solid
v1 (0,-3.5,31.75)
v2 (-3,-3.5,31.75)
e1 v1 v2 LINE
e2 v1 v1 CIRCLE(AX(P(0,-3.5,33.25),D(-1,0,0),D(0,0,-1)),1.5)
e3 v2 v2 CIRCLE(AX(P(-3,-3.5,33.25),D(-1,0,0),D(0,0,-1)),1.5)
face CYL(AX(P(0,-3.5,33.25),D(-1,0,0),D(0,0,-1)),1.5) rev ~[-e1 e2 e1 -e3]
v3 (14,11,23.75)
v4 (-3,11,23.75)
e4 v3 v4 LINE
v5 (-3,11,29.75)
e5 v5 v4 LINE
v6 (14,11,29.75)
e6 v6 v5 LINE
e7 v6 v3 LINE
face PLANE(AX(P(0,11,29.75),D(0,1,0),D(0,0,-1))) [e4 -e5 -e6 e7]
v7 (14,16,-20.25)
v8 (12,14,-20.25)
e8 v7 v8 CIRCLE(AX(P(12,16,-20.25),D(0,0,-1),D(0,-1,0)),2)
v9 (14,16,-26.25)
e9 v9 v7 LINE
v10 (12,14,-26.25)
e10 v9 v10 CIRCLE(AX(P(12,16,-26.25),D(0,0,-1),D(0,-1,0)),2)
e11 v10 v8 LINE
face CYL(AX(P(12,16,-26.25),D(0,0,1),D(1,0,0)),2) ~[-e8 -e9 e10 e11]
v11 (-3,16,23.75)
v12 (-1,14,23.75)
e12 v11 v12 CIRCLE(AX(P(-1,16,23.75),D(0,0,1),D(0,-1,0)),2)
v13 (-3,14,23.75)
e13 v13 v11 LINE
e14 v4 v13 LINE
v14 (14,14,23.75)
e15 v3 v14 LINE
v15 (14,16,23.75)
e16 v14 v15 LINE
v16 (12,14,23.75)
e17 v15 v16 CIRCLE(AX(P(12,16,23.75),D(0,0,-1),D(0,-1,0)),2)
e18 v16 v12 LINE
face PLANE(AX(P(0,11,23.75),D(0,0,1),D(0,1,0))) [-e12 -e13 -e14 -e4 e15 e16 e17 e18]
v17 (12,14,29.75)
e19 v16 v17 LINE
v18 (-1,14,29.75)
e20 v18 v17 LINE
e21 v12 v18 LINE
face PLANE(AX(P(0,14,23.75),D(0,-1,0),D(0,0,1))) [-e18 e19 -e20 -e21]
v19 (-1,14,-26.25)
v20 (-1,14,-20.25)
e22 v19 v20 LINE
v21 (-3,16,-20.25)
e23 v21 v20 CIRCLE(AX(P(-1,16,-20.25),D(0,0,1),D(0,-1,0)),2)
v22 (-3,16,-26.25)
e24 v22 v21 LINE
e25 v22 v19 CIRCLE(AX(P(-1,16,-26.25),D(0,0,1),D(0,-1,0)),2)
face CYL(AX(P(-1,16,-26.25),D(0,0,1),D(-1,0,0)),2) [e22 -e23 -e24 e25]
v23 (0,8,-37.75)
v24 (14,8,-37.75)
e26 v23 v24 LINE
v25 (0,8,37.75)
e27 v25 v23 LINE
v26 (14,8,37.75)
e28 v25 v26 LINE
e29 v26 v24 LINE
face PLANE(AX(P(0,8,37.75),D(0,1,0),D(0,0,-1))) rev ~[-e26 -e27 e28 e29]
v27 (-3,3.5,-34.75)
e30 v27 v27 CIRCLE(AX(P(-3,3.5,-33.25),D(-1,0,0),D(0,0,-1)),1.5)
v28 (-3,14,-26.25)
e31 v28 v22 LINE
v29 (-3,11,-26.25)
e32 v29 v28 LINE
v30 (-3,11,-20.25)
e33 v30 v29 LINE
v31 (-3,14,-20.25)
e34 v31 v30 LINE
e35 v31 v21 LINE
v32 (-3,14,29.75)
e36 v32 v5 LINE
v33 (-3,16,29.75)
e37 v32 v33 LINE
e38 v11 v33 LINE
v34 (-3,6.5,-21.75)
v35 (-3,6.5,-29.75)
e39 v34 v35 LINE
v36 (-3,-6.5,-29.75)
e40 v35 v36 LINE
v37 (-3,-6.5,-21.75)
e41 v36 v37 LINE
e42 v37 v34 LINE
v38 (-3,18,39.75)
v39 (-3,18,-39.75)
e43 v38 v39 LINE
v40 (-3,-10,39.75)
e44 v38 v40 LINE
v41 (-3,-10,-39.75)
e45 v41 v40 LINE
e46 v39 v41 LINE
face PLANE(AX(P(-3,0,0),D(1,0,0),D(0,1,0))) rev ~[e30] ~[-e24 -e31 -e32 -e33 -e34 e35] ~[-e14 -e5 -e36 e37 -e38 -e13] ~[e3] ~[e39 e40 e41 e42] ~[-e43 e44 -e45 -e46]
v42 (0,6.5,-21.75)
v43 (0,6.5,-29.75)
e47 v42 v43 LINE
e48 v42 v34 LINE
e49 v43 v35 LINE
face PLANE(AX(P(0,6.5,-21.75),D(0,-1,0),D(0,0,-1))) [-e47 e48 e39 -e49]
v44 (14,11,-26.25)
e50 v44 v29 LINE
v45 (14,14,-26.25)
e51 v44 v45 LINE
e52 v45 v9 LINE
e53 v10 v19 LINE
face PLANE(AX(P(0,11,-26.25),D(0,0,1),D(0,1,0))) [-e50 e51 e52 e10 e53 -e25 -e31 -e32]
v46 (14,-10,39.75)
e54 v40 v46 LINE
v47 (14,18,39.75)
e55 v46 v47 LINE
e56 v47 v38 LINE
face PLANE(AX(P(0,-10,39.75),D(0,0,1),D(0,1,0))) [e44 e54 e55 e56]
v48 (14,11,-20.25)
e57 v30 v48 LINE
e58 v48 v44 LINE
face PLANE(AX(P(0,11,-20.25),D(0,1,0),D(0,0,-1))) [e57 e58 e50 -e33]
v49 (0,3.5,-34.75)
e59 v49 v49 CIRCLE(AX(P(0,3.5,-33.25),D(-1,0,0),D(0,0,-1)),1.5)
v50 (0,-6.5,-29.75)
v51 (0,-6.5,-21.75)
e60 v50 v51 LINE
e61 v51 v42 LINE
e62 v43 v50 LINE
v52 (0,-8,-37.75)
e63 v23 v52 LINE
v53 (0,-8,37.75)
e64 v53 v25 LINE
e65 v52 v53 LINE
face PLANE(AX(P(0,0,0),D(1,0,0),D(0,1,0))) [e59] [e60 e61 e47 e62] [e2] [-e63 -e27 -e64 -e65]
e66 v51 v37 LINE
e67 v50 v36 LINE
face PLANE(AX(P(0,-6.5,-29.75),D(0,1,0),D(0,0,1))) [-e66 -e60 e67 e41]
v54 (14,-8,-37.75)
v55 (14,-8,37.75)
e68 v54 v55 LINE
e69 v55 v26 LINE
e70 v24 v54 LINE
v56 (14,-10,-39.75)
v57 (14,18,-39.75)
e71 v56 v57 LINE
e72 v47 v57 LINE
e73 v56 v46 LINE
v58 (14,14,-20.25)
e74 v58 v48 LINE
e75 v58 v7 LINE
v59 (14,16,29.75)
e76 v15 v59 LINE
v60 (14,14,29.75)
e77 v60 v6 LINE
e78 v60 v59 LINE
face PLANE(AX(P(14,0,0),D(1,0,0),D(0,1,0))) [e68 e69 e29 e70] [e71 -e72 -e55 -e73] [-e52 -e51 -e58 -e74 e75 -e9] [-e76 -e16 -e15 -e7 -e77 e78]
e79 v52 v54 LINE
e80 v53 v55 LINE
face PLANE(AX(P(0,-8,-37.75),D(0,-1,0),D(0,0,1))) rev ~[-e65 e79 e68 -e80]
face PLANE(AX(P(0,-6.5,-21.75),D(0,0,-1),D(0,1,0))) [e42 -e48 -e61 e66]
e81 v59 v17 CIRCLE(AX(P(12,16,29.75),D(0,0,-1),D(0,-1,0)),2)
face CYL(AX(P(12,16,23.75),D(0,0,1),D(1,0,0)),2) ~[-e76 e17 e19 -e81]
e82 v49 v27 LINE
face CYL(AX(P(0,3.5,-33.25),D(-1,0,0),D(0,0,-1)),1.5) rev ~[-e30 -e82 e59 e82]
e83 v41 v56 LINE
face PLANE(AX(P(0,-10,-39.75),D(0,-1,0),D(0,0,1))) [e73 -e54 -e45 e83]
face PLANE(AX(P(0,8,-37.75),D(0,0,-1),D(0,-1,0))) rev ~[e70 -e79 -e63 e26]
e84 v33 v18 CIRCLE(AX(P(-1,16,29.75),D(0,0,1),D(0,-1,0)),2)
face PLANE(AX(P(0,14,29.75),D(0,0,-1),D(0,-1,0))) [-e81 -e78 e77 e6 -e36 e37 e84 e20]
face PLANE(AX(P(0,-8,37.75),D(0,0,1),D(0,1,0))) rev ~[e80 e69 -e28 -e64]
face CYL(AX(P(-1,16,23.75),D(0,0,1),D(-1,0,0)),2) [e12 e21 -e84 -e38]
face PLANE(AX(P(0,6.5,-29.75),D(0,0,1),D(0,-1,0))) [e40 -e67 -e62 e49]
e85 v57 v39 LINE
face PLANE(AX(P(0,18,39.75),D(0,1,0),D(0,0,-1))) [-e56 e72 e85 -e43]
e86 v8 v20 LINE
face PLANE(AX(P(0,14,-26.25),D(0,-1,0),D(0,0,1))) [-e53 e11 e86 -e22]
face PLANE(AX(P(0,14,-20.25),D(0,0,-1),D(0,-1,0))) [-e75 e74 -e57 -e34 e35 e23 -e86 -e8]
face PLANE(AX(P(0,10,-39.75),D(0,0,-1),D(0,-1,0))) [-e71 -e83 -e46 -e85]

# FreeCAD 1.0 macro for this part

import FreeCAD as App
import Part
import Sketcher

V = App.Vector
Q = App.Units.Quantity


def edges_at(feature, points):
    """Names of the edges that pass closest to the given points."""
    edges = feature.Shape.Edges
    near = lambda p: min(range(len(edges)), key=lambda i: edges[i].distToShape(Part.Vertex(*p))[0])
    return sorted({f"Edge{near(p) + 1}" for p in points})


def add_polygon(sketch, points):
    """Adds a closed chain of lines whose ends are joined by coincident constraints."""
    first, n = sketch.GeometryCount, len(points)
    for a, b in zip(points, points[1:] + points[:1]):
        sketch.addGeometry(Part.LineSegment(App.Vector(*a, 0), App.Vector(*b, 0)), False)
    for i in range(n):
        sketch.addConstraint(Sketcher.Constraint("Coincident", first + i, 2, first + (i + 1) % n, 1))

doc = App.newDocument("Part")
body = doc.addObject("PartDesign::Body", "Body")

sketch1 = body.newObject("Sketcher::SketchObject", "Sketch")
sketch1.AttachmentSupport = (doc.getObject("YZ_Plane"), [""])
sketch1.MapMode = "FlatFace"
add_polygon(sketch1, [(10, 39.75), (-10, 39.75), (-10, -39.75), (10, -39.75)])
add_polygon(sketch1, [(-6.5, -29.75), (-6.5, -21.75), (6.5, -21.75), (6.5, -29.75)])
sketch1.addConstraint(Sketcher.Constraint("Horizontal", 0))
sketch1.addConstraint(Sketcher.Constraint("Vertical", 1))
sketch1.addConstraint(Sketcher.Constraint("Horizontal", 2))
sketch1.addConstraint(Sketcher.Constraint("Vertical", 3))
sketch1.addConstraint(Sketcher.Constraint("Vertical", 4))
sketch1.addConstraint(Sketcher.Constraint("Horizontal", 5))
sketch1.addConstraint(Sketcher.Constraint("Vertical", 6))
sketch1.addConstraint(Sketcher.Constraint("Horizontal", 7))
sketch1.addConstraint(Sketcher.Constraint("Symmetric", 0, 2, 2, 2, -1, 1))
sketch1.addConstraint(Sketcher.Constraint("DistanceX", 5, 1, 5, 2, Q("13 mm")))
sketch1.addConstraint(Sketcher.Constraint("DistanceY", 4, 1, 4, 2, Q("8 mm")))
sketch1.addConstraint(Sketcher.Constraint("DistanceX", 0, 2, -1, 1, Q("10 mm")))
sketch1.addConstraint(Sketcher.Constraint("DistanceY", 2, 2, 6, 2, Q("10 mm")))
sketch1.addConstraint(Sketcher.Constraint("DistanceY", 1, 2, 1, 1, Q("79.5 mm")))
sketch1.addConstraint(Sketcher.Constraint("DistanceX", 4, 2, -1, 1, Q("6.5 mm")))
pad1 = body.newObject("PartDesign::Pad", "Pad")
pad1.Profile = sketch1
pad1.Length = 3
pad1.Reversed = True

sketch2 = body.newObject("Sketcher::SketchObject", "Sketch001")
sketch2.AttachmentSupport = (doc.getObject("YZ_Plane"), [""])
sketch2.MapMode = "FlatFace"
add_polygon(sketch2, [(10, 39.75), (-10, 39.75), (-10, -39.75), (10, -39.75)])
add_polygon(sketch2, [(-8, -37.75), (-8, 37.75), (8, 37.75), (8, -37.75)])
sketch2.addConstraint(Sketcher.Constraint("Horizontal", 0))
sketch2.addConstraint(Sketcher.Constraint("Vertical", 1))
sketch2.addConstraint(Sketcher.Constraint("Horizontal", 2))
sketch2.addConstraint(Sketcher.Constraint("Vertical", 3))
sketch2.addConstraint(Sketcher.Constraint("Vertical", 4))
sketch2.addConstraint(Sketcher.Constraint("Horizontal", 5))
sketch2.addConstraint(Sketcher.Constraint("Vertical", 6))
sketch2.addConstraint(Sketcher.Constraint("Horizontal", 7))
sketch2.addConstraint(Sketcher.Constraint("Symmetric", 0, 2, 2, 2, -1, 1))
sketch2.addConstraint(Sketcher.Constraint("Symmetric", 4, 2, 6, 2, -1, 1))
sketch2.addConstraint(Sketcher.Constraint("DistanceX", 5, 1, 5, 2, Q("16 mm")))
sketch2.addConstraint(Sketcher.Constraint("DistanceY", 4, 1, 4, 2, Q("75.5 mm")))
sketch2.addConstraint(Sketcher.Constraint("DistanceX", 0, 2, -1, 1, Q("10 mm")))
sketch2.addConstraint(Sketcher.Constraint("DistanceY", 4, 2, 0, 2, Q("2 mm")))
pad2 = body.newObject("PartDesign::Pad", "Pad001")
pad2.Profile = sketch2
pad2.Length = 14

sketch3 = body.newObject("Sketcher::SketchObject", "Sketch002")
sketch3.AttachmentSupport = (doc.getObject("YZ_Plane"), [""])
sketch3.MapMode = "FlatFace"
add_polygon(sketch3, [(18, 39.75), (10, 39.75), (10, -39.75), (18, -39.75)])
add_polygon(sketch3, [(11, -26.25), (11, -20.25), (14, -20.25), (14, -26.25)])
add_polygon(sketch3, [(11, 29.75), (14, 29.75), (14, 23.75), (11, 23.75)])
sketch3.addConstraint(Sketcher.Constraint("Horizontal", 0))
sketch3.addConstraint(Sketcher.Constraint("Vertical", 1))
sketch3.addConstraint(Sketcher.Constraint("Horizontal", 2))
sketch3.addConstraint(Sketcher.Constraint("Vertical", 3))
sketch3.addConstraint(Sketcher.Constraint("Vertical", 4))
sketch3.addConstraint(Sketcher.Constraint("Horizontal", 5))
sketch3.addConstraint(Sketcher.Constraint("Vertical", 6))
sketch3.addConstraint(Sketcher.Constraint("Horizontal", 7))
sketch3.addConstraint(Sketcher.Constraint("Horizontal", 8))
sketch3.addConstraint(Sketcher.Constraint("Vertical", 9))
sketch3.addConstraint(Sketcher.Constraint("Horizontal", 10))
sketch3.addConstraint(Sketcher.Constraint("Vertical", 11))
sketch3.addConstraint(Sketcher.Constraint("Vertical", 6, 2, 8, 2))
sketch3.addConstraint(Sketcher.Constraint("Vertical", 7, 2, 10, 2))
sketch3.addConstraint(Sketcher.Constraint("Equal", 6, 9))
sketch3.addConstraint(Sketcher.Constraint("DistanceX", 0, 2, 0, 1, Q("8 mm")))
sketch3.addConstraint(Sketcher.Constraint("DistanceX", 5, 1, 5, 2, Q("3 mm")))
sketch3.addConstraint(Sketcher.Constraint("DistanceY", 4, 1, 4, 2, Q("6 mm")))
sketch3.addConstraint(Sketcher.Constraint("DistanceX", -1, 1, 0, 2, Q("10 mm")))
sketch3.addConstraint(Sketcher.Constraint("DistanceX", 1, 2, 5, 2, Q("4 mm")))
sketch3.addConstraint(Sketcher.Constraint("DistanceY", 8, 2, 0, 2, Q("10 mm")))
sketch3.addConstraint(Sketcher.Constraint("DistanceY", 5, 2, 8, 2, Q("50 mm")))
sketch3.addConstraint(Sketcher.Constraint("DistanceY", 1, 2, 1, 1, Q("79.5 mm")))
sketch3.addConstraint(Sketcher.Constraint("DistanceY", -1, 1, 0, 2, Q("39.75 mm")))
pad3 = body.newObject("PartDesign::Pad", "Pad002")
pad3.Profile = sketch3
pad3.Type = "TwoLengths"
pad3.Length = 14
pad3.Length2 = 3

sketch4 = body.newObject("Sketcher::SketchObject", "Sketch003")
sketch4.AttachmentSupport = (doc.getObject("YZ_Plane"), [""])
sketch4.MapMode = "FlatFace"
sketch4.addGeometry(Part.Circle(V(3.5, -33.25, 0), V(0, 0, 1), 1.5), False)
sketch4.addGeometry(Part.Circle(V(-3.5, 33.25, 0), V(0, 0, 1), 1.5), False)
sketch4.addConstraint(Sketcher.Constraint("Equal", 0, 1))
sketch4.addConstraint(Sketcher.Constraint("Symmetric", 0, 3, 1, 3, -1, 1))
sketch4.addConstraint(Sketcher.Constraint("Diameter", 0, Q("3 mm")))
sketch4.addConstraint(Sketcher.Constraint("DistanceX", 1, 3, 0, 3, Q("7 mm")))
sketch4.addConstraint(Sketcher.Constraint("DistanceY", 0, 3, 1, 3, Q("66.5 mm")))
doc.recompute()
hole = body.newObject("PartDesign::Hole", "Hole")
hole.Profile = sketch4
hole.ThreadType = "None"
hole.Diameter = 3
hole.DepthType = "ThroughAll"
doc.recompute()

fillet = body.newObject("PartDesign::Fillet", "Fillet")
fillet.Base = (hole, edges_at(hole, [
    (14, 14, 26.75),
    (14, 14, -23.25),
    (-3, 14, -23.25),
    (-3, 14, 26.75),
]))
fillet.Radius = 2

doc.recompute()
